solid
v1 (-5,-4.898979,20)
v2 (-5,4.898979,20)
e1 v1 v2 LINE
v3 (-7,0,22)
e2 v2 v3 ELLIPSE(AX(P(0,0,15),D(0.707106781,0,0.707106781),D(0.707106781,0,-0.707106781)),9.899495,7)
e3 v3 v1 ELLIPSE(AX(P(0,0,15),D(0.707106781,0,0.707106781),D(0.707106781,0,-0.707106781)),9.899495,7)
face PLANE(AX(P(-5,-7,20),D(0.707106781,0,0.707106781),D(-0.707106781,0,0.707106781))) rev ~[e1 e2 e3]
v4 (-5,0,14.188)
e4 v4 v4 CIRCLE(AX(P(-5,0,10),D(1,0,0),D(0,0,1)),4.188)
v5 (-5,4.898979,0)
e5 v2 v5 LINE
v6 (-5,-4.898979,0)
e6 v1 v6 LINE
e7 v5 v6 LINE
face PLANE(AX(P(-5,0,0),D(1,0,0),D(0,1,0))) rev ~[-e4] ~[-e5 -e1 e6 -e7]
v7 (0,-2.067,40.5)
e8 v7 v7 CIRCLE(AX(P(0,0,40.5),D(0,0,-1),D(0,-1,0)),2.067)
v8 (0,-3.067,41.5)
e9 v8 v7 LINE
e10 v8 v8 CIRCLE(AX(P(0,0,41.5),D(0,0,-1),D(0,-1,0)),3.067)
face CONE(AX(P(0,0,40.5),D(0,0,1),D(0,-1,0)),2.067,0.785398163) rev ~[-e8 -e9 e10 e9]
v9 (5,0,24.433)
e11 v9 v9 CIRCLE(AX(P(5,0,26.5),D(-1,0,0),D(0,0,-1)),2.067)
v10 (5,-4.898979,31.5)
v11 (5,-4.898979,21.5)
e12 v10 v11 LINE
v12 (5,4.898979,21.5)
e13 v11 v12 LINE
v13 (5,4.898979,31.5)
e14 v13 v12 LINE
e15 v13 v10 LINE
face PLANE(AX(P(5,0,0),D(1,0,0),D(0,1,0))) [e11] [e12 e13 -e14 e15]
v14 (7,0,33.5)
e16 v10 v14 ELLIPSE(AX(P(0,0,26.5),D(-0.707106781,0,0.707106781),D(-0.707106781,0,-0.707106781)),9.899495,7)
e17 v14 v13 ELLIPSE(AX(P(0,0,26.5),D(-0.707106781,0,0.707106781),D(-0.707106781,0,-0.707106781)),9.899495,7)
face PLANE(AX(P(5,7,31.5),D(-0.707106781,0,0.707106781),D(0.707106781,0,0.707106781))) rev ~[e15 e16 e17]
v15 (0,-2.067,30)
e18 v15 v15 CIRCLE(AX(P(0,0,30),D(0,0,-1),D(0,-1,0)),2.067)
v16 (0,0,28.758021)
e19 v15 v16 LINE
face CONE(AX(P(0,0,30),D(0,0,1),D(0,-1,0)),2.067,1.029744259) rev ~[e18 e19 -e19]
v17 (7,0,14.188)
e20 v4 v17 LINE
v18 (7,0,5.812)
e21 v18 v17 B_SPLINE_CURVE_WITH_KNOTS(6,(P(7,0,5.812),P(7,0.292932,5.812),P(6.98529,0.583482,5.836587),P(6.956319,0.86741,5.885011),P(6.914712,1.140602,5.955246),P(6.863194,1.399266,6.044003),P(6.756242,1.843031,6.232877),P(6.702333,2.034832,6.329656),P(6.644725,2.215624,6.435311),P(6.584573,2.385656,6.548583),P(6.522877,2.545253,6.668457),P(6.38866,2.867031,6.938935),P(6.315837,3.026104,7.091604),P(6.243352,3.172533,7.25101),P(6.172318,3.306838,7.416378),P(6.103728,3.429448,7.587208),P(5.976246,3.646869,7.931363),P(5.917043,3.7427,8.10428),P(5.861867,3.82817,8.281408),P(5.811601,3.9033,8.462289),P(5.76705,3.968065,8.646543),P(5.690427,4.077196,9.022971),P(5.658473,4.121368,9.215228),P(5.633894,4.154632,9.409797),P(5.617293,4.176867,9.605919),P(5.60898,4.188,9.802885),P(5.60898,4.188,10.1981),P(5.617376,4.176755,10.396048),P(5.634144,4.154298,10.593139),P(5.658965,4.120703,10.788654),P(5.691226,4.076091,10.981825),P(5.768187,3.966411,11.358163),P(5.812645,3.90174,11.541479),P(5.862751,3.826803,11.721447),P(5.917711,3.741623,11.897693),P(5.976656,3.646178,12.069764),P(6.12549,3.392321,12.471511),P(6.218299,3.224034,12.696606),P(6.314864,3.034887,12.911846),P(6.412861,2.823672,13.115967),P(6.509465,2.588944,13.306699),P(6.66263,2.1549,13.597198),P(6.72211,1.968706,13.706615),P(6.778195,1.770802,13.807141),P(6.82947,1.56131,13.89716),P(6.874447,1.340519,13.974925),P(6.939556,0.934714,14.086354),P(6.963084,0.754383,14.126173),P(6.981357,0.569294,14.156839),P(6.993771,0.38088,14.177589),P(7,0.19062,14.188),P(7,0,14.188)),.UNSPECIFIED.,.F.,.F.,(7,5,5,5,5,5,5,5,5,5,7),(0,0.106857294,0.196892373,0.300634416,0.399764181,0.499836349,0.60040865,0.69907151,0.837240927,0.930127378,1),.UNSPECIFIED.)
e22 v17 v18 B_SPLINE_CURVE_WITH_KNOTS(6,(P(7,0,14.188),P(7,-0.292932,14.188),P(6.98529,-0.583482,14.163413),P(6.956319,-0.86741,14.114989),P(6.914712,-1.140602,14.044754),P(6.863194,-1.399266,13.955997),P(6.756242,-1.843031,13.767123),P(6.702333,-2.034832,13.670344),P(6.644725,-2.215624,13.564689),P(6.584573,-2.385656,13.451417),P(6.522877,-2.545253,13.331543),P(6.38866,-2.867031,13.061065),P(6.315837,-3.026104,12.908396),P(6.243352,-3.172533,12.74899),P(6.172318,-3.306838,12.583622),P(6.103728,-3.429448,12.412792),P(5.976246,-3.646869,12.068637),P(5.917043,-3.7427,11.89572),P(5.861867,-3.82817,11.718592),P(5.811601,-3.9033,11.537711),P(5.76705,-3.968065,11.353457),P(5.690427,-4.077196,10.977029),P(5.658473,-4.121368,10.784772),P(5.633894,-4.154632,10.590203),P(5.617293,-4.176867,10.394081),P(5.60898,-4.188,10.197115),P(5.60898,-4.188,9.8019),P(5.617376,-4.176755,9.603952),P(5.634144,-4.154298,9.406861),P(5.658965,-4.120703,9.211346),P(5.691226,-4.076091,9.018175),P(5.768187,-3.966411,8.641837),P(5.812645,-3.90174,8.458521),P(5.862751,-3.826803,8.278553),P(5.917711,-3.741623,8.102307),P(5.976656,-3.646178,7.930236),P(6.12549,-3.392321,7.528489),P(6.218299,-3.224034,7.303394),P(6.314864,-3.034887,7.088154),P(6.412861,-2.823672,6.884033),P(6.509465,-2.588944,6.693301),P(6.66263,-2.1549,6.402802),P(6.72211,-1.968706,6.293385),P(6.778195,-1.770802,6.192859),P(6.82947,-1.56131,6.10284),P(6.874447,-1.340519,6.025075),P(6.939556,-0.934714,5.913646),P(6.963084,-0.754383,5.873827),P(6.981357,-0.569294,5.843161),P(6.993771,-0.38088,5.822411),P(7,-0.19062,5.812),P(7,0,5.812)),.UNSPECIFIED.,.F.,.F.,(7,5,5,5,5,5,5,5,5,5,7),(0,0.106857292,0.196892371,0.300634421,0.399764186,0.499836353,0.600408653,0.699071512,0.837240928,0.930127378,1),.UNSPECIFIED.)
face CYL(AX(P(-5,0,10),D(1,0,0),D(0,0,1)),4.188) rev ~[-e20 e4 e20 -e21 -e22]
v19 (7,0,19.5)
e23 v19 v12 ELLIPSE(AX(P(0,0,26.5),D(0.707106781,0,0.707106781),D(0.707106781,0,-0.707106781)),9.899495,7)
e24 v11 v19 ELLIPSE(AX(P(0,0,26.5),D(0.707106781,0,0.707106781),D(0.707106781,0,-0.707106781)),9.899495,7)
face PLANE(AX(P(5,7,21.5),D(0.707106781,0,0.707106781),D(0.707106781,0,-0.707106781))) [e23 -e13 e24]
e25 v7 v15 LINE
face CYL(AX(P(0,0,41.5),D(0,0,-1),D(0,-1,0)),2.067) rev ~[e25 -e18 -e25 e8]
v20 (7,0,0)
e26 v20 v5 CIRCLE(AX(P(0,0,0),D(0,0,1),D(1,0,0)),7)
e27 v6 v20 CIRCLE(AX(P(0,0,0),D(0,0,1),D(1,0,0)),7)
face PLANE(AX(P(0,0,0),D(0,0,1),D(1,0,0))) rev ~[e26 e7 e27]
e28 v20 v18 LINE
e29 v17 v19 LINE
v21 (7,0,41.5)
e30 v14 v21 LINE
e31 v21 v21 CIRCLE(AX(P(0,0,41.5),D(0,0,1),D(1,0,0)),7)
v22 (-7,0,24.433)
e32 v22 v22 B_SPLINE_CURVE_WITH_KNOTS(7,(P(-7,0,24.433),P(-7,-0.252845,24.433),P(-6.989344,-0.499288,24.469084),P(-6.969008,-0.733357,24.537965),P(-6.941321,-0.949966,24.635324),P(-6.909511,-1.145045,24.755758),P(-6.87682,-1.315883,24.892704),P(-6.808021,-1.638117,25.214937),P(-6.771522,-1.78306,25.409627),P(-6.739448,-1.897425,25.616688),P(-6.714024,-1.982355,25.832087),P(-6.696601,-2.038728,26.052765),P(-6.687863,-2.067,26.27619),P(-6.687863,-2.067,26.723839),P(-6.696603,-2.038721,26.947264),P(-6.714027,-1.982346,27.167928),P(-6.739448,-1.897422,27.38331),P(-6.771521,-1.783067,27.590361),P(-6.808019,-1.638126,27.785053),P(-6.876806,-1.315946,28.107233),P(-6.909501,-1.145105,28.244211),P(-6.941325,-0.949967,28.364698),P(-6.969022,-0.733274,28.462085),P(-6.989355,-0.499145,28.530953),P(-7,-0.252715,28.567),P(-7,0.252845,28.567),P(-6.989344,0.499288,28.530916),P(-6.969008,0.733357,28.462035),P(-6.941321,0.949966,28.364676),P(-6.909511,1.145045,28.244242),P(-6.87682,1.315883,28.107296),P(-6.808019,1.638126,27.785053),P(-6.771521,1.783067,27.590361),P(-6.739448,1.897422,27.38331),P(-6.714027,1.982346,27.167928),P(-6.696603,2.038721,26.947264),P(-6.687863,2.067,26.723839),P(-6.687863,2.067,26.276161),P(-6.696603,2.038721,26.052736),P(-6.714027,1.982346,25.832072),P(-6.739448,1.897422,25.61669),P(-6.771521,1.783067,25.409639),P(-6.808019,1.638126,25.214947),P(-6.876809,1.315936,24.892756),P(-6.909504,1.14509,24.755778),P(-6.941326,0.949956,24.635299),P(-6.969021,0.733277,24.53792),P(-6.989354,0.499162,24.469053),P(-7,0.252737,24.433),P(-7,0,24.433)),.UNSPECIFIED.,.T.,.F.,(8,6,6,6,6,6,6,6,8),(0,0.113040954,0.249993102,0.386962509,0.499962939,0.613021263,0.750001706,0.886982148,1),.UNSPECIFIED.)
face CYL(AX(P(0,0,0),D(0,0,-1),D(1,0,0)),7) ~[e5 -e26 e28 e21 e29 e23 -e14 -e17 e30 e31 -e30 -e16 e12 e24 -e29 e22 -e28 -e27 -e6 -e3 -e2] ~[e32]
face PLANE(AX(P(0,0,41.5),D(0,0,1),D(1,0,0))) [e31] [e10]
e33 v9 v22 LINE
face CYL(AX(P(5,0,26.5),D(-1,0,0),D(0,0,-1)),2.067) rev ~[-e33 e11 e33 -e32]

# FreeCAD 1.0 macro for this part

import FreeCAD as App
import Part
import Sketcher


def edges_at(feature, points):
    """Names of the edges that pass closest to the given points."""
    edges = feature.Shape.Edges
    near = lambda p: min(range(len(edges)), key=lambda i: edges[i].distToShape(Part.Vertex(*p))[0])
    return sorted({f"Edge{near(p) + 1}" for p in points})


def add_polygon(sketch, points):
    """Adds a closed chain of lines whose ends are joined by coincident constraints."""
    first, n = sketch.GeometryCount, len(points)
    for a, b in zip(points, points[1:] + points[:1]):
        sketch.addGeometry(Part.LineSegment(App.Vector(*a, 0), App.Vector(*b, 0)), False)
    for i in range(n):
        sketch.addConstraint(Sketcher.Constraint("Coincident", first + i, 2, first + (i + 1) % n, 1))

doc = App.newDocument("Part")
body = doc.addObject("PartDesign::Body", "Body")

# Sketch on XY plane
sketch1 = doc.addObject("Sketcher::SketchObject", "Sketch")
body.addObject(sketch1)
sketch1.AttachmentSupport = (doc.XY_Plane, [""])
sketch1.MapMode = "FlatFace"
sketch1.addGeometry(Part.Circle(App.Vector(0, 0, 0), App.Vector(0, 0, 1), 7), False)
sketch1.addConstraint(Sketcher.Constraint("Coincident", 0, 3, -1, 1))
sketch1.addConstraint(Sketcher.Constraint("Diameter", 0, 14.0))
pad1 = doc.addObject("PartDesign::Pad", "Pad")
body.addObject(pad1)
pad1.Profile = sketch1
pad1.Length = 41.5

# Sketch on XY plane
sketch2 = doc.addObject("Sketcher::SketchObject", "Sketch001")
body.addObject(sketch2)
sketch2.AttachmentSupport = (doc.XY_Plane, [""])
sketch2.MapMode = "FlatFace"
sketch2.AttachmentOffset = App.Placement(App.Vector(0, 0, 41.5), App.Rotation())
sketch2.addGeometry(Part.Circle(App.Vector(0, 0, 0), App.Vector(0, 0, 1), 2.1), False)
sketch2.addConstraint(Sketcher.Constraint("Coincident", 0, 3, -1, 1))
sketch2.addConstraint(Sketcher.Constraint("Diameter", 0, 4.134))
doc.recompute()
hole = doc.addObject("PartDesign::Hole", "Hole")
body.addObject(hole)
hole.Profile = sketch2
hole.ThreadType = "None"
hole.Diameter = 4.134
hole.DepthType = "Dimension"
hole.Depth = 11.5
hole.DrillPoint = "Angled"
hole.DrillPointAngle = 118
doc.recompute()

chamfer = doc.addObject("PartDesign::Chamfer", "Chamfer")
body.addObject(chamfer)
chamfer.Base = (hole, edges_at(hole, [(0, 2.067, 41.5)]))
chamfer.Size = 1

# Sketch on YZ plane
sketch3 = doc.addObject("Sketcher::SketchObject", "Sketch002")
body.addObject(sketch3)
sketch3.AttachmentSupport = (doc.YZ_Plane, [""])
sketch3.MapMode = "FlatFace"
sketch3.AttachmentOffset = App.Placement(App.Vector(0, 0, 7), App.Rotation())
add_polygon(sketch3, [(-7, 32), (-7, 22), (7, 22), (7, 32)])  # lines 0-3
sketch3.addConstraint(Sketcher.Constraint("Vertical", 0))
sketch3.addConstraint(Sketcher.Constraint("Horizontal", 1))
sketch3.addConstraint(Sketcher.Constraint("Vertical", 2))
sketch3.addConstraint(Sketcher.Constraint("Horizontal", 3))
sketch3.addConstraint(Sketcher.Constraint("DistanceY", 0, 2, 0, 1, 10.0))
sketch3.addConstraint(Sketcher.Constraint("DistanceX", 1, 1, 1, 2, 14.0))
sketch3.addConstraint(Sketcher.Constraint("DistanceX", 0, 2, -1, 1, 7.0))
sketch3.addConstraint(Sketcher.Constraint("DistanceY", -1, 1, 0, 2, 21.5))
pocket1 = doc.addObject("PartDesign::Pocket", "Pocket")
body.addObject(pocket1)
pocket1.Profile = sketch3
pocket1.Length = 2

# Sketch on YZ plane
sketch4 = doc.addObject("Sketcher::SketchObject", "Sketch003")
body.addObject(sketch4)
sketch4.AttachmentSupport = (doc.YZ_Plane, [""])
sketch4.MapMode = "FlatFace"
sketch4.AttachmentOffset = App.Placement(App.Vector(0, 0, 5), App.Rotation())
sketch4.addGeometry(Part.Circle(App.Vector(0, 26.5, 0), App.Vector(0, 0, 1), 2.1), False)
sketch4.addConstraint(Sketcher.Constraint("PointOnObject", 0, 3, -2))
sketch4.addConstraint(Sketcher.Constraint("Diameter", 0, 4.134))
sketch4.addConstraint(Sketcher.Constraint("DistanceY", -1, 1, 0, 3, 26.5))
doc.recompute()
hole2 = doc.addObject("PartDesign::Hole", "Hole001")
body.addObject(hole2)
hole2.Profile = sketch4
hole2.ThreadType = "None"
hole2.Diameter = 4.134
hole2.DepthType = "ThroughAll"

# Sketch on XZ plane
sketch5 = doc.addObject("Sketcher::SketchObject", "Sketch004")
body.addObject(sketch5)
sketch5.AttachmentSupport = (doc.XZ_Plane, [""])
sketch5.MapMode = "FlatFace"
sketch5.AttachmentOffset = App.Placement(App.Vector(0, 0, -7), App.Rotation())
add_polygon(sketch5, [(7, 19.5), (5, 21.5), (7, 21.5)])  # lines 0-2
add_polygon(sketch5, [(7, 31.5), (5, 31.5), (7, 33.5)])  # lines 3-5
sketch5.addConstraint(Sketcher.Constraint("Horizontal", 1))
sketch5.addConstraint(Sketcher.Constraint("Vertical", 2))
sketch5.addConstraint(Sketcher.Constraint("Horizontal", 3))
sketch5.addConstraint(Sketcher.Constraint("Vertical", 5))
sketch5.addConstraint(Sketcher.Constraint("Perpendicular", 0, 4))
sketch5.addConstraint(Sketcher.Constraint("Vertical", 0, 2, 3, 2))
sketch5.addConstraint(Sketcher.Constraint("Vertical", 2, 2, 4, 2))
sketch5.addConstraint(Sketcher.Constraint("Equal", 3, 2))
sketch5.addConstraint(Sketcher.Constraint("DistanceX", 1, 1, 1, 2, 2.0))
sketch5.addConstraint(Sketcher.Constraint("DistanceX", -1, 1, 0, 2, 5.0))
sketch5.addConstraint(Sketcher.Constraint("DistanceY", 0, 2, 3, 2, 10.0))
sketch5.addConstraint(Sketcher.Constraint("DistanceY", -1, 1, 0, 2, 21.5))
pocket2 = doc.addObject("PartDesign::Pocket", "Pocket001")
body.addObject(pocket2)
pocket2.Profile = sketch5
pocket2.Type = "ThroughAll"
pocket2.Reversed = True

# Sketch on YZ plane
sketch6 = doc.addObject("Sketcher::SketchObject", "Sketch005")
body.addObject(sketch6)
sketch6.AttachmentSupport = (doc.YZ_Plane, [""])
sketch6.MapMode = "FlatFace"
sketch6.AttachmentOffset = App.Placement(App.Vector(0, 0, -7), App.Rotation())
add_polygon(sketch6, [(-7, 0), (7, 0), (7, 20), (-7, 20)])  # lines 0-3
sketch6.addConstraint(Sketcher.Constraint("Horizontal", 0))
sketch6.addConstraint(Sketcher.Constraint("Vertical", 1))
sketch6.addConstraint(Sketcher.Constraint("Horizontal", 2))
sketch6.addConstraint(Sketcher.Constraint("Vertical", 3))
sketch6.addConstraint(Sketcher.Constraint("Symmetric", 0, 2, 3, 2, -1, 1))
sketch6.addConstraint(Sketcher.Constraint("DistanceY", 1, 1, 1, 2, 20.0))
sketch6.addConstraint(Sketcher.Constraint("DistanceX", 0, 1, 0, 2, 14.0))
pocket3 = doc.addObject("PartDesign::Pocket", "Pocket002")
body.addObject(pocket3)
pocket3.Profile = sketch6
pocket3.Length = 2
pocket3.Reversed = True

# Sketch on XZ plane
sketch7 = doc.addObject("Sketcher::SketchObject", "Sketch006")
body.addObject(sketch7)
sketch7.AttachmentSupport = (doc.XZ_Plane, [""])
sketch7.MapMode = "FlatFace"
sketch7.AttachmentOffset = App.Placement(App.Vector(0, 0, 7), App.Rotation())
add_polygon(sketch7, [(-5, 20), (-7, 20), (-7, 22)])  # lines 0-2
sketch7.addConstraint(Sketcher.Constraint("Horizontal", 0))
sketch7.addConstraint(Sketcher.Constraint("Vertical", 1))
sketch7.addConstraint(Sketcher.Constraint("Equal", 0, 1))
sketch7.addConstraint(Sketcher.Constraint("DistanceX", 0, 2, 0, 1, 2.0))
sketch7.addConstraint(Sketcher.Constraint("DistanceX", 0, 2, -1, 1, 7.0))
sketch7.addConstraint(Sketcher.Constraint("DistanceY", -1, 1, 0, 2, 20.0))
pocket4 = doc.addObject("PartDesign::Pocket", "Pocket003")
body.addObject(pocket4)
pocket4.Profile = sketch7
pocket4.Type = "ThroughAll"

# Sketch on YZ plane
sketch8 = doc.addObject("Sketcher::SketchObject", "Sketch007")
body.addObject(sketch8)
sketch8.AttachmentSupport = (doc.YZ_Plane, [""])
sketch8.MapMode = "FlatFace"
sketch8.AttachmentOffset = App.Placement(App.Vector(0, 0, -5), App.Rotation())
sketch8.addGeometry(Part.Circle(App.Vector(0, 10, 0), App.Vector(0, 0, 1), 4.2), False)
sketch8.addConstraint(Sketcher.Constraint("PointOnObject", 0, 3, -2))
sketch8.addConstraint(Sketcher.Constraint("Diameter", 0, 8.376))
sketch8.addConstraint(Sketcher.Constraint("DistanceY", -1, 1, 0, 3, 10.0))
doc.recompute()
hole3 = doc.addObject("PartDesign::Hole", "Hole002")
body.addObject(hole3)
hole3.Profile = sketch8
hole3.ThreadType = "None"
hole3.Diameter = 8.376
hole3.DepthType = "ThroughAll"
hole3.Reversed = True

doc.recompute()
